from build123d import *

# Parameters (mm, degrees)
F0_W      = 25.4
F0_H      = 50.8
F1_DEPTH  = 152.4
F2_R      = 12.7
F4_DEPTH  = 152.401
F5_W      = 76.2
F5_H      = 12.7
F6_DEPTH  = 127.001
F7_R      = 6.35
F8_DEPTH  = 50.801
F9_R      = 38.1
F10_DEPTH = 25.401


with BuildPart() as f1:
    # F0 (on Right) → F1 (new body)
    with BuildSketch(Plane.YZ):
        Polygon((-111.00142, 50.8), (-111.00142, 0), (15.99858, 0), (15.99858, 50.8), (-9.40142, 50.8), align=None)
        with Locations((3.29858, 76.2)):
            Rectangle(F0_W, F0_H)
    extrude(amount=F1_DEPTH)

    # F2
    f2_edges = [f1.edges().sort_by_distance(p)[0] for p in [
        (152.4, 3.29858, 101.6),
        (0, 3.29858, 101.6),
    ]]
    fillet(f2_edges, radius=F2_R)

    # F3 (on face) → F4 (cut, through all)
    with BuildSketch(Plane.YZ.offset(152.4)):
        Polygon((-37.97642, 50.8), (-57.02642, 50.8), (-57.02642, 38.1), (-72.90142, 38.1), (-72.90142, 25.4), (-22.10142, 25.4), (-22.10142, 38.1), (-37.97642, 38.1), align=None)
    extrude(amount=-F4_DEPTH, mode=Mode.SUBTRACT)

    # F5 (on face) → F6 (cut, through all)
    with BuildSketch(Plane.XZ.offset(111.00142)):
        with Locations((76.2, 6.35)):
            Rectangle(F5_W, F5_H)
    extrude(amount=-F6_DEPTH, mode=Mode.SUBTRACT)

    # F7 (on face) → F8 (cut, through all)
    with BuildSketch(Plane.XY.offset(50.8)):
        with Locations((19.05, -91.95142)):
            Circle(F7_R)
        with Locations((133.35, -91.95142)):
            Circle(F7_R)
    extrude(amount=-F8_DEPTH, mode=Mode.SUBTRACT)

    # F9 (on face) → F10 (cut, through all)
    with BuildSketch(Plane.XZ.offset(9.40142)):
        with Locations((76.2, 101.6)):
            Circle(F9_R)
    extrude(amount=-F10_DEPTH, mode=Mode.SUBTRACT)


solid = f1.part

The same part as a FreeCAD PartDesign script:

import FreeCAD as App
import Part
import Sketcher
from FreeCAD import Vector
Q = App.Units.Quantity


def edges_at(feature, points):
    """Names of the edges that pass closest to the given points."""
    edges = feature.Shape.Edges
    near = lambda p: min(range(len(edges)), key=lambda i: edges[i].distToShape(Part.Vertex(*p))[0])
    return sorted({f"Edge{near(p) + 1}" for p in points})


def add_polygon(sketch, points):
    """Adds a closed chain of lines whose ends are joined by coincident constraints."""
    first, n = sketch.GeometryCount, len(points)
    for a, b in zip(points, points[1:] + points[:1]):
        sketch.addGeometry(Part.LineSegment(App.Vector(*a, 0), App.Vector(*b, 0)), False)
    for i in range(n):
        sketch.addConstraint(Sketcher.Constraint("Coincident", first + i, 2, first + (i + 1) % n, 1))

doc = App.newDocument("Part")
body = doc.addObject("PartDesign::Body", "Body")

# Sketch on YZ plane
sketch1 = doc.addObject("Sketcher::SketchObject", "Sketch")
body.addObject(sketch1)
sketch1.AttachmentSupport = (doc.YZ_Plane, [""])
sketch1.MapMode = "FlatFace"
add_polygon(sketch1, [(-111, 51), (-111, 0), (16, 0), (16, 102), (-9, 102), (-9, 51)])  # lines 0-5
sketch1.addConstraint(Sketcher.Constraint("Vertical", 0))
sketch1.addConstraint(Sketcher.Constraint("Horizontal", 1))
sketch1.addConstraint(Sketcher.Constraint("Vertical", 2))
sketch1.addConstraint(Sketcher.Constraint("Horizontal", 3))
sketch1.addConstraint(Sketcher.Constraint("Vertical", 4))
sketch1.addConstraint(Sketcher.Constraint("Horizontal", 5))
sketch1.addConstraint(Sketcher.Constraint("PointOnObject", 0, 2, -1))
sketch1.addConstraint(Sketcher.Constraint("Equal", 5, 2))
sketch1.addConstraint(Sketcher.Constraint("Equal", 0, 4))
sketch1.addConstraint(Sketcher.Constraint("DistanceX", 1, 1, 1, 2, Q("5 in")))
sketch1.addConstraint(Sketcher.Constraint("DistanceX", 3, 2, 3, 1, Q("1 in")))
sketch1.addConstraint(Sketcher.Constraint("DistanceX", 0, 2, -1, 1, Q("111.00142 mm")))
pad1 = doc.addObject("PartDesign::Pad", "Pad")
body.addObject(pad1)
pad1.Profile = sketch1
pad1.Length = Q("6 in")
doc.recompute()

fillet = doc.addObject("PartDesign::Fillet", "Fillet")
body.addObject(fillet)
fillet.Base = (pad1, edges_at(pad1, [(152.4, 3.299, 101.6), (0, 3.299, 101.6)]))
fillet.Radius = Q("0.5 in")

# Sketch on YZ plane
sketch2 = doc.addObject("Sketcher::SketchObject", "Sketch001")
body.addObject(sketch2)
sketch2.AttachmentSupport = (doc.YZ_Plane, [""])
sketch2.MapMode = "FlatFace"
sketch2.AttachmentOffset = App.Placement(Vector(0, 0, 6 * 25.4), App.Rotation())
add_polygon(sketch2, [(-38, 51), (-57, 51), (-57, 38), (-73, 38), (-73, 25), (-22, 25), (-22, 38), (-38, 38)])  # lines 0-7
sketch2.addConstraint(Sketcher.Constraint("Horizontal", 0))
sketch2.addConstraint(Sketcher.Constraint("Vertical", 1))
sketch2.addConstraint(Sketcher.Constraint("Horizontal", 2))
sketch2.addConstraint(Sketcher.Constraint("Vertical", 3))
sketch2.addConstraint(Sketcher.Constraint("Horizontal", 4))
sketch2.addConstraint(Sketcher.Constraint("Vertical", 5))
sketch2.addConstraint(Sketcher.Constraint("Horizontal", 6))
sketch2.addConstraint(Sketcher.Constraint("Vertical", 7))
sketch2.addConstraint(Sketcher.Constraint("Horizontal", 2, 2, 5, 2))
sketch2.addConstraint(Sketcher.Constraint("Equal", 2, 6))
sketch2.addConstraint(Sketcher.Constraint("Equal", 1, 3))
sketch2.addConstraint(Sketcher.Constraint("DistanceX", 4, 1, 4, 2, Q("2 in")))
sketch2.addConstraint(Sketcher.Constraint("DistanceY", 1, 2, 1, 1, Q("0.5 in")))
sketch2.addConstraint(Sketcher.Constraint("DistanceY", -1, 1, 0, 2, Q("2 in")))
sketch2.addConstraint(Sketcher.Constraint("DistanceX", 0, 2, 0, 1, Q("0.75 in")))
sketch2.addConstraint(Sketcher.Constraint("DistanceX", 0, 2, -1, 1, Q("57.02642 mm")))
pocket1 = doc.addObject("PartDesign::Pocket", "Pocket")
body.addObject(pocket1)
pocket1.Profile = sketch2
pocket1.Type = "ThroughAll"

# Sketch on XZ plane
sketch3 = doc.addObject("Sketcher::SketchObject", "Sketch002")
body.addObject(sketch3)
sketch3.AttachmentSupport = (doc.XZ_Plane, [""])
sketch3.MapMode = "FlatFace"
sketch3.AttachmentOffset = App.Placement(Vector(0, 0, 111.00142), App.Rotation())
add_polygon(sketch3, [(38, 13), (38, 0), (114, 0), (114, 13)])  # lines 0-3
sketch3.addConstraint(Sketcher.Constraint("Vertical", 0))
sketch3.addConstraint(Sketcher.Constraint("Horizontal", 1))
sketch3.addConstraint(Sketcher.Constraint("Vertical", 2))
sketch3.addConstraint(Sketcher.Constraint("Horizontal", 3))
sketch3.addConstraint(Sketcher.Constraint("PointOnObject", 0, 2, -1))
sketch3.addConstraint(Sketcher.Constraint("DistanceX", 1, 1, 1, 2, Q("3 in")))
sketch3.addConstraint(Sketcher.Constraint("DistanceY", 0, 2, 0, 1, Q("0.5 in")))
sketch3.addConstraint(Sketcher.Constraint("DistanceX", -1, 1, 0, 2, Q("1.5 in")))
pocket2 = doc.addObject("PartDesign::Pocket", "Pocket001")
body.addObject(pocket2)
pocket2.Profile = sketch3
pocket2.Type = "ThroughAll"

# Sketch on XY plane
sketch4 = doc.addObject("Sketcher::SketchObject", "Sketch003")
body.addObject(sketch4)
sketch4.AttachmentSupport = (doc.XY_Plane, [""])
sketch4.MapMode = "FlatFace"
sketch4.AttachmentOffset = App.Placement(Vector(0, 0, 2 * 25.4), App.Rotation())
sketch4.addGeometry(Part.Circle(Vector(19, -92, 0), Vector(0, 0, 1), 6), False)
sketch4.addGeometry(Part.Circle(Vector(133, -92, 0), Vector(0, 0, 1), 6), False)
sketch4.addConstraint(Sketcher.Constraint("Equal", 0, 1))
sketch4.addConstraint(Sketcher.Constraint("Horizontal", 0, 3, 1, 3))
sketch4.addConstraint(Sketcher.Constraint("Diameter", 0, Q("0.5 in")))
sketch4.addConstraint(Sketcher.Constraint("DistanceX", 0, 3, 1, 3, Q("4.5 in")))
sketch4.addConstraint(Sketcher.Constraint("DistanceX", -1, 1, 0, 3, Q("0.75 in")))
sketch4.addConstraint(Sketcher.Constraint("DistanceY", 0, 3, -1, 1, Q("91.95142 mm")))
pocket3 = doc.addObject("PartDesign::Pocket", "Pocket002")
body.addObject(pocket3)
pocket3.Profile = sketch4
pocket3.Type = "ThroughAll"

# Sketch on XZ plane
sketch5 = doc.addObject("Sketcher::SketchObject", "Sketch004")
body.addObject(sketch5)
sketch5.AttachmentSupport = (doc.XZ_Plane, [""])
sketch5.MapMode = "FlatFace"
sketch5.AttachmentOffset = App.Placement(Vector(0, 0, 9.40142), App.Rotation())
sketch5.addGeometry(Part.Circle(Vector(76, 102, 0), Vector(0, 0, 1), 38), False)
sketch5.addConstraint(Sketcher.Constraint("Diameter", 0, Q("3 in")))
sketch5.addConstraint(Sketcher.Constraint("DistanceX", -1, 1, 0, 3, Q("3 in")))
sketch5.addConstraint(Sketcher.Constraint("DistanceY", -1, 1, 0, 3, Q("4 in")))
pocket4 = doc.addObject("PartDesign::Pocket", "Pocket003")
body.addObject(pocket4)
pocket4.Profile = sketch5
pocket4.Type = "ThroughAll"

doc.recompute()
